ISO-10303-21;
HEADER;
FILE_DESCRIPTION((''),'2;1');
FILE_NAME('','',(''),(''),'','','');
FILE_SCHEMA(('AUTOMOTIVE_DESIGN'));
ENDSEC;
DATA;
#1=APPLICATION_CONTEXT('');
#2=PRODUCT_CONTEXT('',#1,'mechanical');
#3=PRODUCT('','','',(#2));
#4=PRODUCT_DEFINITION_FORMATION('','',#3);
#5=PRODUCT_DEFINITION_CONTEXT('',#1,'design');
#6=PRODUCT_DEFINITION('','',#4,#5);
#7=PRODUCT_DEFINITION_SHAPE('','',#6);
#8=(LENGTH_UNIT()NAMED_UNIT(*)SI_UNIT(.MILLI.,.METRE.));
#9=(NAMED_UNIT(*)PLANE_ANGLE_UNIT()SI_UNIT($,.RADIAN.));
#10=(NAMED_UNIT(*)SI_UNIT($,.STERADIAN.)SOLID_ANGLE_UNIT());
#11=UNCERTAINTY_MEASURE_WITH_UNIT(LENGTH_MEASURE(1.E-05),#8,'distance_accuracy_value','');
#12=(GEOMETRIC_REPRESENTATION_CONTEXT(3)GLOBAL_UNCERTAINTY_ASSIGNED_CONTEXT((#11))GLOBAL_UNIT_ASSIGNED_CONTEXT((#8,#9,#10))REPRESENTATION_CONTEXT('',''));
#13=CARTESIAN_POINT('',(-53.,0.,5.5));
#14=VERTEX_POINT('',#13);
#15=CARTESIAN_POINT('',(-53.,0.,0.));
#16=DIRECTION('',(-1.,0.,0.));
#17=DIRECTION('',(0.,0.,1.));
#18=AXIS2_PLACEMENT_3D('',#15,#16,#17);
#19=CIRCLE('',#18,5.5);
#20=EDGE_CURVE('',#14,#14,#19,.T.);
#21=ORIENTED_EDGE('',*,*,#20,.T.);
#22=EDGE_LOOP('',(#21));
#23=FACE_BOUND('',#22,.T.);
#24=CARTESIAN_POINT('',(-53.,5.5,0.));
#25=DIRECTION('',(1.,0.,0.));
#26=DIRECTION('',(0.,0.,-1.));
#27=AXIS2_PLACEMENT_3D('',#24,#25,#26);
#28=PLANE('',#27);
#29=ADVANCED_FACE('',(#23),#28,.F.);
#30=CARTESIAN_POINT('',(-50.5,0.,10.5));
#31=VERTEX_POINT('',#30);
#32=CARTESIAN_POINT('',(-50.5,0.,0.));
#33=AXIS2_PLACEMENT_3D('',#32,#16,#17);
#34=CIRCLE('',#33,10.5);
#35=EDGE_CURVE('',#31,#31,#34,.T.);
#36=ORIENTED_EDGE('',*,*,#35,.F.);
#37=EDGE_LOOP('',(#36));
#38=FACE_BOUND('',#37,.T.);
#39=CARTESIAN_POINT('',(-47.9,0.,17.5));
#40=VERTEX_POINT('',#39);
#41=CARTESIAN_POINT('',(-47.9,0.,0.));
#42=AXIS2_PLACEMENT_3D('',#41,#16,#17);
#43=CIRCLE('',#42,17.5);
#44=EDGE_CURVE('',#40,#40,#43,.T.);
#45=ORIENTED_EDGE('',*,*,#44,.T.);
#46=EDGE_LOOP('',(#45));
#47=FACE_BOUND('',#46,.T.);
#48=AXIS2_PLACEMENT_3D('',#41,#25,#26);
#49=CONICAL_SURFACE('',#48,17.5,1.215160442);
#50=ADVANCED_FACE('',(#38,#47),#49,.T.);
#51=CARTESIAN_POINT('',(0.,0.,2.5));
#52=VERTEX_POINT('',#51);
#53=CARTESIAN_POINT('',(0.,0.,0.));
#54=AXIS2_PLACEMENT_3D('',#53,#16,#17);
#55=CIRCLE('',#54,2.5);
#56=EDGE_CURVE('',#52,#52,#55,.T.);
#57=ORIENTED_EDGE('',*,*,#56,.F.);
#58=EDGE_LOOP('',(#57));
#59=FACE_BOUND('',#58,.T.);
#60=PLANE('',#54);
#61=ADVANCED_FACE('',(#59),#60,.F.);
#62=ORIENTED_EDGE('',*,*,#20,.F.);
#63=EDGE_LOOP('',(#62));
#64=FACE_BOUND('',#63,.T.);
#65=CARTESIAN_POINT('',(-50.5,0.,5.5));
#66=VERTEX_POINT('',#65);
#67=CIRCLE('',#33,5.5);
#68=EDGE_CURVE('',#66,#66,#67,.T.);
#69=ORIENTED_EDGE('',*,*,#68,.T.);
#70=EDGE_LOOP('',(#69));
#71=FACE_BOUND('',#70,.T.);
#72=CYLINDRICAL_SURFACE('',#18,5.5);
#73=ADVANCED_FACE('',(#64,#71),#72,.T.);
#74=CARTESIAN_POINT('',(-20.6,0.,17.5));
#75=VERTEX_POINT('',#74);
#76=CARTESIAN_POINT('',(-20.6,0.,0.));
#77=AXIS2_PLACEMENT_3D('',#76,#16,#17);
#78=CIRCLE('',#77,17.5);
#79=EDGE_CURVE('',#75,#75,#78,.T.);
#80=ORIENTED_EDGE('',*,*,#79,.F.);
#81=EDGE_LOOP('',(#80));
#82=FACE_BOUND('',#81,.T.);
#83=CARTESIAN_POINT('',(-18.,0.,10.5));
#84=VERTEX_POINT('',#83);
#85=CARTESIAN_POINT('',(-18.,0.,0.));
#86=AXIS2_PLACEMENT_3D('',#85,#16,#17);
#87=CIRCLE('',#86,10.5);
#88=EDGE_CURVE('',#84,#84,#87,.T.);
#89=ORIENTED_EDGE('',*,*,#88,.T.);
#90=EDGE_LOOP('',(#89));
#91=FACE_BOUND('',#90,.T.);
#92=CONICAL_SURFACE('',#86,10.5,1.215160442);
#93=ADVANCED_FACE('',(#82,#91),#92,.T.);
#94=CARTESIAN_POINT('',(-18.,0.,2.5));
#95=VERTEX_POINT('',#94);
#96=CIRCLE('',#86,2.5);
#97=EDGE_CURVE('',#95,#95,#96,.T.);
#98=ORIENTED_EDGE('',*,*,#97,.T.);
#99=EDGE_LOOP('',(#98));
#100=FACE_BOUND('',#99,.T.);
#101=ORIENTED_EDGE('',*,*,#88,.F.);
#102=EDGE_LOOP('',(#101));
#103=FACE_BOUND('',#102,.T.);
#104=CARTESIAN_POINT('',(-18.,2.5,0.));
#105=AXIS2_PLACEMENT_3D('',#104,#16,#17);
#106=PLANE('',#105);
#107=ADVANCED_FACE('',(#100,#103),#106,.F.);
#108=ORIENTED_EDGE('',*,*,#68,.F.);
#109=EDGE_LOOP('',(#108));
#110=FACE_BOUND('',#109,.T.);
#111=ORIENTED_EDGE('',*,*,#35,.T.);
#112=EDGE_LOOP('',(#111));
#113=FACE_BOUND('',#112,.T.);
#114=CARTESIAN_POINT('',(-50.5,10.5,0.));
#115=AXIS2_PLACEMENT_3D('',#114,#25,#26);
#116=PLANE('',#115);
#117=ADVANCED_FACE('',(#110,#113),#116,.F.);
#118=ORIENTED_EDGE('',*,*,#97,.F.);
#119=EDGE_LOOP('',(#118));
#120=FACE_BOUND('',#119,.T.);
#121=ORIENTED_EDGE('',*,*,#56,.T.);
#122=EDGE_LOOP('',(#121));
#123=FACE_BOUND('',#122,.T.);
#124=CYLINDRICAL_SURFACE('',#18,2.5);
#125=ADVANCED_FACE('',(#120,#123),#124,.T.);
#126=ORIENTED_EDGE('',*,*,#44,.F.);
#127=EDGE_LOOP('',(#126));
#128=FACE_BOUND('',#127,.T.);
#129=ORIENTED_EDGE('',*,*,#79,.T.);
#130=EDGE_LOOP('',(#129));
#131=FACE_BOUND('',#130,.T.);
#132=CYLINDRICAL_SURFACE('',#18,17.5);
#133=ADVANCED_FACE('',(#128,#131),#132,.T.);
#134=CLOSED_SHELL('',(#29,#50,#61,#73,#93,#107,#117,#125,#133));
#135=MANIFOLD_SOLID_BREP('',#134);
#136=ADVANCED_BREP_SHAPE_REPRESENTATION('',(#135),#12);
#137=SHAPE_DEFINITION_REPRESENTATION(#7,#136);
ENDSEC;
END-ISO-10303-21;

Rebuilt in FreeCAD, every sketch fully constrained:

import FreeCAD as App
import Part
import Sketcher
from FreeCAD import Vector
Q = App.Units.Quantity

doc = App.newDocument("Part")
body = doc.addObject("PartDesign::Body", "Body")

sketch1 = body.newObject("Sketcher::SketchObject", "Sketch")
sketch1.AttachmentSupport = (doc.getObject("XY_Plane"), [""])
sketch1.MapMode = "FlatFace"
sketch1.addGeometry([
    Part.LineSegment(Vector(0, 0, 0), Vector(0, 2.5, 0)),
    Part.LineSegment(Vector(0, 2.5, 0), Vector(-18, 2.5, 0)),
    Part.LineSegment(Vector(-18, 2.5, 0), Vector(-18, 10.5, 0)),
    Part.LineSegment(Vector(-18, 10.5, 0), Vector(-20.6, 17.5, 0)),
    Part.LineSegment(Vector(-20.6, 17.5, 0), Vector(-47.9, 17.5, 0)),
    Part.LineSegment(Vector(-47.9, 17.5, 0), Vector(-50.5, 10.5, 0)),
    Part.LineSegment(Vector(-50.5, 10.5, 0), Vector(-50.5, 5.5, 0)),
    Part.LineSegment(Vector(-50.5, 5.5, 0), Vector(-53, 5.5, 0)),
    Part.LineSegment(Vector(-53, 5.5, 0), Vector(-53, 0, 0)),
    Part.LineSegment(Vector(-53, 0, 0), Vector(0, 0, 0)),
], False)
sketch1.addConstraint([
    Sketcher.Constraint("Coincident", 0, 2, 1, 1),
    Sketcher.Constraint("Coincident", 1, 2, 2, 1),
    Sketcher.Constraint("Coincident", 2, 2, 3, 1),
    Sketcher.Constraint("Coincident", 3, 2, 4, 1),
    Sketcher.Constraint("Coincident", 4, 2, 5, 1),
    Sketcher.Constraint("Coincident", 5, 2, 6, 1),
    Sketcher.Constraint("Coincident", 6, 2, 7, 1),
    Sketcher.Constraint("Coincident", 7, 2, 8, 1),
    Sketcher.Constraint("Coincident", 8, 2, 9, 1),
    Sketcher.Constraint("Coincident", 9, 2, 0, 1),
    Sketcher.Constraint("Vertical", 0),
    Sketcher.Constraint("Horizontal", 1),
    Sketcher.Constraint("Vertical", 2),
    Sketcher.Constraint("Horizontal", 4),
    Sketcher.Constraint("Vertical", 6),
    Sketcher.Constraint("Horizontal", 7),
    Sketcher.Constraint("Vertical", 8),
    Sketcher.Constraint("Horizontal", 9),
    Sketcher.Constraint("Coincident", 9, 2, -1, 1),
    Sketcher.Constraint("Horizontal", 2, 2, 5, 2),
    Sketcher.Constraint("Equal", 7, 0),
    Sketcher.Constraint("Equal", 3, 5),
    Sketcher.Constraint("DistanceX", 1, 2, 1, 1, Q("18 mm")),
    Sketcher.Constraint("DistanceX", 9, 1, 9, 2, Q("53 mm")),
    Sketcher.Constraint("DistanceY", 2, 1, 2, 2, Q("8 mm")),
    Sketcher.Constraint("DistanceY", 6, 2, 6, 1, Q("5 mm")),
    Sketcher.Constraint("DistanceX", 4, 2, 4, 1, Q("27.3 mm")),
    Sketcher.Constraint("DistanceX", 7, 2, 7, 1, Q("2.5 mm")),
    Sketcher.Constraint("DistanceY", 2, 2, 3, 2, Q("7 mm")),
])
revolution = body.newObject("PartDesign::Revolution", "Revolution")
revolution.Profile = sketch1
revolution.ReferenceAxis = (sketch1, ["H_Axis"])
revolution.Angle = 360

doc.recompute()
